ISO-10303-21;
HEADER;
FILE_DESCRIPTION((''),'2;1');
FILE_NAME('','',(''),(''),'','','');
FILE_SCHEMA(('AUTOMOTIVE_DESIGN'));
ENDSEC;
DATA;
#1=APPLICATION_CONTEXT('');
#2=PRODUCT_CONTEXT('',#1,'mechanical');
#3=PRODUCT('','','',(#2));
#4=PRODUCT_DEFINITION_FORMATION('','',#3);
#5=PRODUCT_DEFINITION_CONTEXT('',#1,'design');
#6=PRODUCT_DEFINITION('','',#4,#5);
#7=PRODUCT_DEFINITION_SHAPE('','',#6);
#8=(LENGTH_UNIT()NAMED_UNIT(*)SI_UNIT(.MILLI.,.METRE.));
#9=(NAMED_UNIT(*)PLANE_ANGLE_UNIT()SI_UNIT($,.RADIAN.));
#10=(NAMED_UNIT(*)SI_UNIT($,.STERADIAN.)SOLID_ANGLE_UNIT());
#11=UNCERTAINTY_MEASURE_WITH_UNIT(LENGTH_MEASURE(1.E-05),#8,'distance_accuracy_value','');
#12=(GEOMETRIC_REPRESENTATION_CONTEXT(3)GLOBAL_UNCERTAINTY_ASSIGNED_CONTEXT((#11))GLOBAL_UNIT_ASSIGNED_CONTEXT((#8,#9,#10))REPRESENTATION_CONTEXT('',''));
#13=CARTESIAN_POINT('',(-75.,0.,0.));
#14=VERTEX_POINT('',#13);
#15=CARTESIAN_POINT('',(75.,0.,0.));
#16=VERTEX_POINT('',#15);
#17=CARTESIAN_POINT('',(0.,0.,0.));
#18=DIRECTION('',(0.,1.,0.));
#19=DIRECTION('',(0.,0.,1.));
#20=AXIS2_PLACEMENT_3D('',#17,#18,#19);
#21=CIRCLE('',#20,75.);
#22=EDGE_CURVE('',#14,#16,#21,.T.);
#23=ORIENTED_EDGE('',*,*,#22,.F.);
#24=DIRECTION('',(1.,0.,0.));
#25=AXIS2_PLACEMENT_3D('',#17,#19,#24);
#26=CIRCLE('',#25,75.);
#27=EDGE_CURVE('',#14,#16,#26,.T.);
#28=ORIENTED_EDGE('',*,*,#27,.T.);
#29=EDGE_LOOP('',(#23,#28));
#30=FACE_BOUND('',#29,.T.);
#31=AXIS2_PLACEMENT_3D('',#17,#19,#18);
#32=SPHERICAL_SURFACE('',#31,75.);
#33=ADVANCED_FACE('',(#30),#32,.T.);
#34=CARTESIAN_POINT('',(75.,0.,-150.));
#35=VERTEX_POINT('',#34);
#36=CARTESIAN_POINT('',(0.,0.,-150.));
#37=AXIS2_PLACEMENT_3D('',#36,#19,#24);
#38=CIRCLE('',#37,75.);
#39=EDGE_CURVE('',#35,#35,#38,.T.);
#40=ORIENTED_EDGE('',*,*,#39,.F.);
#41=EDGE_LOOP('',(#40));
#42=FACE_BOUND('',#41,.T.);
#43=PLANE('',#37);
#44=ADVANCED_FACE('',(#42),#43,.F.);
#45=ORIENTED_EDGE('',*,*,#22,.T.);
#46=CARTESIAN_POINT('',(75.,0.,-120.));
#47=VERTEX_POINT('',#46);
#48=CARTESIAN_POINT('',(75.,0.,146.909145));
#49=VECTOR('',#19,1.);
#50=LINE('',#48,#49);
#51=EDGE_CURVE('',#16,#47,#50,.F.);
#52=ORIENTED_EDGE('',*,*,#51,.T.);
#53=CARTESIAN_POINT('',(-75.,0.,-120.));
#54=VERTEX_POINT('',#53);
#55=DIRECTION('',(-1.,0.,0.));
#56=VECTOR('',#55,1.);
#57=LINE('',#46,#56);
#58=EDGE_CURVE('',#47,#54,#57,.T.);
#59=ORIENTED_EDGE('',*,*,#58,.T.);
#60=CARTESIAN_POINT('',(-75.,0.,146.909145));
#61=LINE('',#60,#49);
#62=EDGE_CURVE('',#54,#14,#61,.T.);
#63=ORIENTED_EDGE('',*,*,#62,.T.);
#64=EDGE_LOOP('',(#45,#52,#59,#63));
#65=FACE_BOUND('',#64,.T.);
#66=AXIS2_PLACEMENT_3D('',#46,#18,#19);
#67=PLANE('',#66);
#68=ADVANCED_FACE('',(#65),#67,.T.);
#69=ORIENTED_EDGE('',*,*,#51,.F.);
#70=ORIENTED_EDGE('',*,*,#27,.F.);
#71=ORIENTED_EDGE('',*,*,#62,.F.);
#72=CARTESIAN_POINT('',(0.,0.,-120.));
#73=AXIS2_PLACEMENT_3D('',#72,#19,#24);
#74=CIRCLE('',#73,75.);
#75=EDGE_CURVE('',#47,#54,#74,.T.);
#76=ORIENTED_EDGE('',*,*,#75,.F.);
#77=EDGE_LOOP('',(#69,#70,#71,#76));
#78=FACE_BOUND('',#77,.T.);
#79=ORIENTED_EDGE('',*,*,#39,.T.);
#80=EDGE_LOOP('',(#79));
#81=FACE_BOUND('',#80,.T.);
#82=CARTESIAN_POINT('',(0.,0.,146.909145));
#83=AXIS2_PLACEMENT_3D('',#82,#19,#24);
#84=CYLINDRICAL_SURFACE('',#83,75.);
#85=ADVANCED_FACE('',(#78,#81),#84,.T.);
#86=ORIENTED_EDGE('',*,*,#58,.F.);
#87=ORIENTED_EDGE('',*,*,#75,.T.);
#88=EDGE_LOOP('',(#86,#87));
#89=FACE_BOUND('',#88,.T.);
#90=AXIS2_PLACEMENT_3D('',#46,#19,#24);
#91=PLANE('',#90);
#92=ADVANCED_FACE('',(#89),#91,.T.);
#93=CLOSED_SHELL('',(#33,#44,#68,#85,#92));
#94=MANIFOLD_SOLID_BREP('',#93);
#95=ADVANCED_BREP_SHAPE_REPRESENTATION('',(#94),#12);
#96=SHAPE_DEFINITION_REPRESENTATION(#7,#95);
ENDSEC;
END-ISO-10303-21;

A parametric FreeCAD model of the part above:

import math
import FreeCAD as App
import Part
import Sketcher
from FreeCAD import Vector

doc = App.newDocument("Part")
body = doc.addObject("PartDesign::Body", "Body")

# Sketch on YZ plane
sketch1 = doc.addObject("Sketcher::SketchObject", "Sketch")
body.addObject(sketch1)
sketch1.AttachmentSupport = (doc.YZ_Plane, [""])
sketch1.MapMode = "FlatFace"
sketch1.addGeometry(Part.LineSegment(Vector(0, 75, 0), Vector(0, -150, 0)), False)
sketch1.addGeometry(Part.LineSegment(Vector(0, -150, 0), Vector(75, -150, 0)), False)
sketch1.addGeometry(Part.LineSegment(Vector(75, -150, 0), Vector(75, 0, 0)), False)
sketch1.addGeometry(Part.ArcOfCircle(Part.Circle(Vector(0, 0, 0), Vector(0, 0, 1), 75), math.radians(0), math.radians(90)), False)
sketch1.addConstraint(Sketcher.Constraint("Coincident", 0, 2, 1, 1))
sketch1.addConstraint(Sketcher.Constraint("Coincident", 1, 2, 2, 1))
sketch1.addConstraint(Sketcher.Constraint("Tangent", 2, 2, 3, 1))
sketch1.addConstraint(Sketcher.Constraint("Coincident", 3, 2, 0, 1))
sketch1.addConstraint(Sketcher.Constraint("Vertical", 0))
sketch1.addConstraint(Sketcher.Constraint("Horizontal", 1))
sketch1.addConstraint(Sketcher.Constraint("Vertical", 2))
sketch1.addConstraint(Sketcher.Constraint("Coincident", 3, 3, -1, 1))
sketch1.addConstraint(Sketcher.Constraint("PointOnObject", 0, 2, -2))
sketch1.addConstraint(Sketcher.Constraint("Radius", 3, 75.0))
sketch1.addConstraint(Sketcher.Constraint("DistanceY", 0, 2, 0, 1, 225.0))
revolution = doc.addObject("PartDesign::Revolution", "Revolution")
body.addObject(revolution)
revolution.Profile = sketch1
revolution.ReferenceAxis = (sketch1, ["V_Axis"])
revolution.Angle = 360

# Sketch on YZ plane
sketch2 = doc.addObject("Sketcher::SketchObject", "Sketch001")
body.addObject(sketch2)
sketch2.AttachmentSupport = (doc.YZ_Plane, [""])
sketch2.MapMode = "FlatFace"
sketch2.addGeometry(Part.LineSegment(Vector(0, -120, 0), Vector(75, -120, 0)), False)
sketch2.addGeometry(Part.LineSegment(Vector(75, -120, 0), Vector(75, 0, 0)), False)
sketch2.addGeometry(Part.ArcOfCircle(Part.Circle(Vector(0, 0, 0), Vector(0, 0, 1), 75), math.radians(0), math.radians(90)), False)
sketch2.addGeometry(Part.LineSegment(Vector(0, 75, 0), Vector(0, -120, 0)), False)
sketch2.addConstraint(Sketcher.Constraint("Coincident", 0, 2, 1, 1))
sketch2.addConstraint(Sketcher.Constraint("Tangent", 1, 2, 2, 1))
sketch2.addConstraint(Sketcher.Constraint("Coincident", 2, 2, 3, 1))
sketch2.addConstraint(Sketcher.Constraint("Coincident", 3, 2, 0, 1))
sketch2.addConstraint(Sketcher.Constraint("Horizontal", 0))
sketch2.addConstraint(Sketcher.Constraint("Vertical", 1))
sketch2.addConstraint(Sketcher.Constraint("Vertical", 3))
sketch2.addConstraint(Sketcher.Constraint("Coincident", 2, 3, -1, 1))
sketch2.addConstraint(Sketcher.Constraint("PointOnObject", 2, 2, -2))
sketch2.addConstraint(Sketcher.Constraint("Radius", 2, 75.0))
sketch2.addConstraint(Sketcher.Constraint("DistanceY", 1, 1, 1, 2, 120.0))
pocket1 = doc.addObject("PartDesign::Pocket", "Pocket")
body.addObject(pocket1)
pocket1.Profile = sketch2
pocket1.Type = "ThroughAll"
pocket1.Midplane = True

doc.recompute()
